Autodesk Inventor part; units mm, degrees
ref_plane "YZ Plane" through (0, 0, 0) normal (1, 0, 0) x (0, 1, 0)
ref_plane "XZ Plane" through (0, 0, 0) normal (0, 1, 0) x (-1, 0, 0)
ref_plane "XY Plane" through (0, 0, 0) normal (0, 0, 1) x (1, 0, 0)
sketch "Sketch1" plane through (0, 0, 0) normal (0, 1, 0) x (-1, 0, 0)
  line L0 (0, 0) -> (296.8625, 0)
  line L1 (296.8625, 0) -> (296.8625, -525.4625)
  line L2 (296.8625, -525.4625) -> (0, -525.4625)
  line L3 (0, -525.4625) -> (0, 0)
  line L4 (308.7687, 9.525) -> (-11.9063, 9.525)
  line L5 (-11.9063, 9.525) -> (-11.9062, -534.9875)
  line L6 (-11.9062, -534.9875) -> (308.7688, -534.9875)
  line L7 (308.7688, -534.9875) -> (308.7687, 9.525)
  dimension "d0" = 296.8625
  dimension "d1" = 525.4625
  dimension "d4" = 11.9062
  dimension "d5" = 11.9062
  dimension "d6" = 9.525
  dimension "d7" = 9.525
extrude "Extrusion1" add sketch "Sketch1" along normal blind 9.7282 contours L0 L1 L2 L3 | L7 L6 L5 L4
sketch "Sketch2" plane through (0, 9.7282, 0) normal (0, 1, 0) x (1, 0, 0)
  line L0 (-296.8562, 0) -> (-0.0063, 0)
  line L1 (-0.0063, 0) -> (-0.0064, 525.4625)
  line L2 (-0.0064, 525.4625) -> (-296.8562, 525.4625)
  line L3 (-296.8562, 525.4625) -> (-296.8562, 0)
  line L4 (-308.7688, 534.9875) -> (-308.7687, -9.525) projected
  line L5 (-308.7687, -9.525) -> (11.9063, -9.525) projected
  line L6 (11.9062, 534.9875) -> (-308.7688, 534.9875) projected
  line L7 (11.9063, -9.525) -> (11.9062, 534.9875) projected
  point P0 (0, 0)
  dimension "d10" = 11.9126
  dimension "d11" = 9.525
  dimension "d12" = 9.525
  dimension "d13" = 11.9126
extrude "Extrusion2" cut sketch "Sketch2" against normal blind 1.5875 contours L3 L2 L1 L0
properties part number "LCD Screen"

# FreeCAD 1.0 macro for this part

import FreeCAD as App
import Part
import Sketcher

V = App.Vector
Q = App.Units.Quantity

doc = App.newDocument("Part")
body = doc.addObject("PartDesign::Body", "Body")

sketch1 = body.newObject("Sketcher::SketchObject", "Sketch")
sketch1.AttachmentSupport = (doc.getObject("XZ_Plane"), [""])
sketch1.MapMode = "FlatFace"
sketch1.addGeometry(Part.LineSegment(V(-309, -535, 0), V(-309, 10, 0)), False)
sketch1.addGeometry(Part.LineSegment(V(-309, 10, 0), V(12, 10, 0)), False)
sketch1.addGeometry(Part.LineSegment(V(12, 10, 0), V(12, -535, 0)), False)
sketch1.addGeometry(Part.LineSegment(V(12, -535, 0), V(-309, -535, 0)), False)
sketch1.addConstraint(Sketcher.Constraint("Coincident", 0, 2, 1, 1))
sketch1.addConstraint(Sketcher.Constraint("Coincident", 1, 2, 2, 1))
sketch1.addConstraint(Sketcher.Constraint("Coincident", 2, 2, 3, 1))
sketch1.addConstraint(Sketcher.Constraint("Coincident", 3, 2, 0, 1))
sketch1.addConstraint(Sketcher.Constraint("Vertical", 0))
sketch1.addConstraint(Sketcher.Constraint("Horizontal", 1))
sketch1.addConstraint(Sketcher.Constraint("Vertical", 2))
sketch1.addConstraint(Sketcher.Constraint("Horizontal", 3))
sketch1.addConstraint(Sketcher.Constraint("DistanceY", -1, 1, 0, 2, Q("0.375 in")))
sketch1.addConstraint(Sketcher.Constraint("DistanceX", -1, 1, 1, 2, Q("0.468752 in")))
sketch1.addConstraint(Sketcher.Constraint("DistanceX", 1, 1, 1, 2, Q("12.625 in")))
sketch1.addConstraint(Sketcher.Constraint("DistanceY", 0, 1, 0, 2, Q("21.4375 in")))
pad1 = body.newObject("PartDesign::Pad", "Pad")
pad1.Profile = sketch1
pad1.Length = Q("0.383 in")
pad1.Reversed = True

sketch2 = body.newObject("Sketcher::SketchObject", "Sketch001")
sketch2.AttachmentSupport = (doc.getObject("XZ_Plane"), [""])
sketch2.MapMode = "FlatFace"
sketch2.AttachmentOffset = App.Placement(V(0, 0, -0.383 * 25.4), App.Rotation())
sketch2.addGeometry(Part.LineSegment(V(-297, -525, 0), V(-297, 0, 0)), False)
sketch2.addGeometry(Part.LineSegment(V(-297, 0, 0), V(0, 0, 0)), False)
sketch2.addGeometry(Part.LineSegment(V(0, 0, 0), V(0, -525, 0)), False)
sketch2.addGeometry(Part.LineSegment(V(0, -525, 0), V(-297, -525, 0)), False)
sketch2.addConstraint(Sketcher.Constraint("Coincident", 0, 2, 1, 1))
sketch2.addConstraint(Sketcher.Constraint("Coincident", 1, 2, 2, 1))
sketch2.addConstraint(Sketcher.Constraint("Coincident", 2, 2, 3, 1))
sketch2.addConstraint(Sketcher.Constraint("Coincident", 3, 2, 0, 1))
sketch2.addConstraint(Sketcher.Constraint("Vertical", 0))
sketch2.addConstraint(Sketcher.Constraint("Horizontal", 1))
sketch2.addConstraint(Sketcher.Constraint("Vertical", 2))
sketch2.addConstraint(Sketcher.Constraint("Horizontal", 3))
sketch2.addConstraint(Sketcher.Constraint("PointOnObject", 0, 2, -1))
sketch2.addConstraint(Sketcher.Constraint("DistanceX", 1, 1, 1, 2, Q("11.687 in")))
sketch2.addConstraint(Sketcher.Constraint("DistanceY", 0, 1, 0, 2, Q("20.6875 in")))
sketch2.addConstraint(Sketcher.Constraint("DistanceX", 0, 2, -1, 1, Q("296.8562 mm")))
pocket1 = body.newObject("PartDesign::Pocket", "Pocket")
pocket1.Profile = sketch2
pocket1.Length = Q("0.0625 in")
pocket1.Reversed = True

doc.recompute()
